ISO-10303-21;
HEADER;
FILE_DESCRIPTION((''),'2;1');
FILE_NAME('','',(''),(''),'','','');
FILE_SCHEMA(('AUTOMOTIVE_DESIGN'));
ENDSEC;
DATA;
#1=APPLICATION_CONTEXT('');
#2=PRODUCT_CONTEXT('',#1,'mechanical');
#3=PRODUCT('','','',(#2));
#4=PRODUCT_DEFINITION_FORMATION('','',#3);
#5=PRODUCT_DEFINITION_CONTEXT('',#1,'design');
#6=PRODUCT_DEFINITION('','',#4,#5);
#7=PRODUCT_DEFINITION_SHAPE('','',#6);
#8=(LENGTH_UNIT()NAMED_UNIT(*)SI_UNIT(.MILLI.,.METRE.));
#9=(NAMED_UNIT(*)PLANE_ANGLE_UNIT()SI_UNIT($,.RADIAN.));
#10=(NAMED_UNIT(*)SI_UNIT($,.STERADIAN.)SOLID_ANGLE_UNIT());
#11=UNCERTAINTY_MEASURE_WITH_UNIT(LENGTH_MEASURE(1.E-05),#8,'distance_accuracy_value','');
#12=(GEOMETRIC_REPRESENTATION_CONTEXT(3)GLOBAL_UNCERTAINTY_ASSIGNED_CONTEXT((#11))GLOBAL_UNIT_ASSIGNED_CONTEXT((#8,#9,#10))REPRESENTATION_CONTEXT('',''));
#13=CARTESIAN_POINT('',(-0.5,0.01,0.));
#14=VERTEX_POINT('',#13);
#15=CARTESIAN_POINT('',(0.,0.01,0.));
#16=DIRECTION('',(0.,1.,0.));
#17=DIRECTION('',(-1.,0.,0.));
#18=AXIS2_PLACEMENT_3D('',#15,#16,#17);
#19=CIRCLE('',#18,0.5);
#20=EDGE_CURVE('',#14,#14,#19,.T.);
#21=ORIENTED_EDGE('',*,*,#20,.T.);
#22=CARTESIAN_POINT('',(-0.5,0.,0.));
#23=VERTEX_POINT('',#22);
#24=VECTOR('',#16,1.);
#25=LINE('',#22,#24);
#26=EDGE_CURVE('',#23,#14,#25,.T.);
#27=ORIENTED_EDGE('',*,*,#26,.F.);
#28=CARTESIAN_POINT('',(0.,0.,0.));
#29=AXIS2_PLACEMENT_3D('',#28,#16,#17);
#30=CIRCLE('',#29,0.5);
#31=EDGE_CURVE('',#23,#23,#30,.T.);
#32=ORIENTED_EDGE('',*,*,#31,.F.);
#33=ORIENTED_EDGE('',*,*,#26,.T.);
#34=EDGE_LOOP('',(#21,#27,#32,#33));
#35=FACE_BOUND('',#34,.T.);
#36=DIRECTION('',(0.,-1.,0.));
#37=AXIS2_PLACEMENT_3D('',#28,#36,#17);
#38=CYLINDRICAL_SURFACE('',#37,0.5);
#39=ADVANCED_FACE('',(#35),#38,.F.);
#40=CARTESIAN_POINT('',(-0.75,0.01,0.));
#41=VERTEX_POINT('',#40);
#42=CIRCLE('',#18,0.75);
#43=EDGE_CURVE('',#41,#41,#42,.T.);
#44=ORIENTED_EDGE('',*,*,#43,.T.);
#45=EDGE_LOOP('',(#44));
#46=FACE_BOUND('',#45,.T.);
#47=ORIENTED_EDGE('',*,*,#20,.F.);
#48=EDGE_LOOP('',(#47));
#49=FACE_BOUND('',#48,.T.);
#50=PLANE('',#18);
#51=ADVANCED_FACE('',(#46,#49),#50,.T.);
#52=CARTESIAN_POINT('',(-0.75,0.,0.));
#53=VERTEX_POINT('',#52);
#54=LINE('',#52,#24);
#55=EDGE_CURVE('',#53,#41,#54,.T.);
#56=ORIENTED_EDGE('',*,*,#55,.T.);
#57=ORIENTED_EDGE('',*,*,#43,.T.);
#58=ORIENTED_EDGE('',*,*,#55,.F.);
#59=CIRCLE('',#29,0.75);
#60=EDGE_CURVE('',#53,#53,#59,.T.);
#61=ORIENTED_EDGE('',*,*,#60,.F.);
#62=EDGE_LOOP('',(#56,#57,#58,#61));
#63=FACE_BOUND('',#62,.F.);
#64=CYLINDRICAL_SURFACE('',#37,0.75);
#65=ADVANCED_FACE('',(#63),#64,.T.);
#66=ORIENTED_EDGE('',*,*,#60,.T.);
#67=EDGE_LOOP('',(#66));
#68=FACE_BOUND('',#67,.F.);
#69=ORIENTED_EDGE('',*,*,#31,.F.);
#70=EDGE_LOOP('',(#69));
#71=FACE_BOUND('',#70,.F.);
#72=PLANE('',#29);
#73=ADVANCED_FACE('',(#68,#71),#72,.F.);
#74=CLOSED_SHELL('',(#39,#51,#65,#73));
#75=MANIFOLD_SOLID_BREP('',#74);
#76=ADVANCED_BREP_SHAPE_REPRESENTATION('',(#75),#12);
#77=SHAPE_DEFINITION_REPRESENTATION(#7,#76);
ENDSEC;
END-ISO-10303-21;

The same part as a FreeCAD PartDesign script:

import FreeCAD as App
import Part
import Sketcher

V = App.Vector
Q = App.Units.Quantity

doc = App.newDocument("Part")
body = doc.addObject("PartDesign::Body", "Body")

# Sketch on XZ plane
sketch1 = body.newObject("Sketcher::SketchObject", "Sketch")
sketch1.AttachmentSupport = (doc.getObject("XZ_Plane"), [""])
sketch1.MapMode = "FlatFace"
sketch1.addGeometry(Part.Circle(V(0, 0, 0), V(0, 0, 1), 0.8), False)
sketch1.addGeometry(Part.Circle(V(0, 0, 0), V(0, 0, 1), 0.5), False)
sketch1.addConstraint(Sketcher.Constraint("Coincident", 0, 3, -1, 1))
sketch1.addConstraint(Sketcher.Constraint("Coincident", 1, 3, -1, 1))
sketch1.addConstraint(Sketcher.Constraint("Diameter", 1, Q("1 mm")))
sketch1.addConstraint(Sketcher.Constraint("Diameter", 0, Q("1.5 mm")))
pad1 = body.newObject("PartDesign::Pad", "Pad")
pad1.Profile = sketch1
pad1.Length = 0.01
pad1.Reversed = True

doc.recompute()
